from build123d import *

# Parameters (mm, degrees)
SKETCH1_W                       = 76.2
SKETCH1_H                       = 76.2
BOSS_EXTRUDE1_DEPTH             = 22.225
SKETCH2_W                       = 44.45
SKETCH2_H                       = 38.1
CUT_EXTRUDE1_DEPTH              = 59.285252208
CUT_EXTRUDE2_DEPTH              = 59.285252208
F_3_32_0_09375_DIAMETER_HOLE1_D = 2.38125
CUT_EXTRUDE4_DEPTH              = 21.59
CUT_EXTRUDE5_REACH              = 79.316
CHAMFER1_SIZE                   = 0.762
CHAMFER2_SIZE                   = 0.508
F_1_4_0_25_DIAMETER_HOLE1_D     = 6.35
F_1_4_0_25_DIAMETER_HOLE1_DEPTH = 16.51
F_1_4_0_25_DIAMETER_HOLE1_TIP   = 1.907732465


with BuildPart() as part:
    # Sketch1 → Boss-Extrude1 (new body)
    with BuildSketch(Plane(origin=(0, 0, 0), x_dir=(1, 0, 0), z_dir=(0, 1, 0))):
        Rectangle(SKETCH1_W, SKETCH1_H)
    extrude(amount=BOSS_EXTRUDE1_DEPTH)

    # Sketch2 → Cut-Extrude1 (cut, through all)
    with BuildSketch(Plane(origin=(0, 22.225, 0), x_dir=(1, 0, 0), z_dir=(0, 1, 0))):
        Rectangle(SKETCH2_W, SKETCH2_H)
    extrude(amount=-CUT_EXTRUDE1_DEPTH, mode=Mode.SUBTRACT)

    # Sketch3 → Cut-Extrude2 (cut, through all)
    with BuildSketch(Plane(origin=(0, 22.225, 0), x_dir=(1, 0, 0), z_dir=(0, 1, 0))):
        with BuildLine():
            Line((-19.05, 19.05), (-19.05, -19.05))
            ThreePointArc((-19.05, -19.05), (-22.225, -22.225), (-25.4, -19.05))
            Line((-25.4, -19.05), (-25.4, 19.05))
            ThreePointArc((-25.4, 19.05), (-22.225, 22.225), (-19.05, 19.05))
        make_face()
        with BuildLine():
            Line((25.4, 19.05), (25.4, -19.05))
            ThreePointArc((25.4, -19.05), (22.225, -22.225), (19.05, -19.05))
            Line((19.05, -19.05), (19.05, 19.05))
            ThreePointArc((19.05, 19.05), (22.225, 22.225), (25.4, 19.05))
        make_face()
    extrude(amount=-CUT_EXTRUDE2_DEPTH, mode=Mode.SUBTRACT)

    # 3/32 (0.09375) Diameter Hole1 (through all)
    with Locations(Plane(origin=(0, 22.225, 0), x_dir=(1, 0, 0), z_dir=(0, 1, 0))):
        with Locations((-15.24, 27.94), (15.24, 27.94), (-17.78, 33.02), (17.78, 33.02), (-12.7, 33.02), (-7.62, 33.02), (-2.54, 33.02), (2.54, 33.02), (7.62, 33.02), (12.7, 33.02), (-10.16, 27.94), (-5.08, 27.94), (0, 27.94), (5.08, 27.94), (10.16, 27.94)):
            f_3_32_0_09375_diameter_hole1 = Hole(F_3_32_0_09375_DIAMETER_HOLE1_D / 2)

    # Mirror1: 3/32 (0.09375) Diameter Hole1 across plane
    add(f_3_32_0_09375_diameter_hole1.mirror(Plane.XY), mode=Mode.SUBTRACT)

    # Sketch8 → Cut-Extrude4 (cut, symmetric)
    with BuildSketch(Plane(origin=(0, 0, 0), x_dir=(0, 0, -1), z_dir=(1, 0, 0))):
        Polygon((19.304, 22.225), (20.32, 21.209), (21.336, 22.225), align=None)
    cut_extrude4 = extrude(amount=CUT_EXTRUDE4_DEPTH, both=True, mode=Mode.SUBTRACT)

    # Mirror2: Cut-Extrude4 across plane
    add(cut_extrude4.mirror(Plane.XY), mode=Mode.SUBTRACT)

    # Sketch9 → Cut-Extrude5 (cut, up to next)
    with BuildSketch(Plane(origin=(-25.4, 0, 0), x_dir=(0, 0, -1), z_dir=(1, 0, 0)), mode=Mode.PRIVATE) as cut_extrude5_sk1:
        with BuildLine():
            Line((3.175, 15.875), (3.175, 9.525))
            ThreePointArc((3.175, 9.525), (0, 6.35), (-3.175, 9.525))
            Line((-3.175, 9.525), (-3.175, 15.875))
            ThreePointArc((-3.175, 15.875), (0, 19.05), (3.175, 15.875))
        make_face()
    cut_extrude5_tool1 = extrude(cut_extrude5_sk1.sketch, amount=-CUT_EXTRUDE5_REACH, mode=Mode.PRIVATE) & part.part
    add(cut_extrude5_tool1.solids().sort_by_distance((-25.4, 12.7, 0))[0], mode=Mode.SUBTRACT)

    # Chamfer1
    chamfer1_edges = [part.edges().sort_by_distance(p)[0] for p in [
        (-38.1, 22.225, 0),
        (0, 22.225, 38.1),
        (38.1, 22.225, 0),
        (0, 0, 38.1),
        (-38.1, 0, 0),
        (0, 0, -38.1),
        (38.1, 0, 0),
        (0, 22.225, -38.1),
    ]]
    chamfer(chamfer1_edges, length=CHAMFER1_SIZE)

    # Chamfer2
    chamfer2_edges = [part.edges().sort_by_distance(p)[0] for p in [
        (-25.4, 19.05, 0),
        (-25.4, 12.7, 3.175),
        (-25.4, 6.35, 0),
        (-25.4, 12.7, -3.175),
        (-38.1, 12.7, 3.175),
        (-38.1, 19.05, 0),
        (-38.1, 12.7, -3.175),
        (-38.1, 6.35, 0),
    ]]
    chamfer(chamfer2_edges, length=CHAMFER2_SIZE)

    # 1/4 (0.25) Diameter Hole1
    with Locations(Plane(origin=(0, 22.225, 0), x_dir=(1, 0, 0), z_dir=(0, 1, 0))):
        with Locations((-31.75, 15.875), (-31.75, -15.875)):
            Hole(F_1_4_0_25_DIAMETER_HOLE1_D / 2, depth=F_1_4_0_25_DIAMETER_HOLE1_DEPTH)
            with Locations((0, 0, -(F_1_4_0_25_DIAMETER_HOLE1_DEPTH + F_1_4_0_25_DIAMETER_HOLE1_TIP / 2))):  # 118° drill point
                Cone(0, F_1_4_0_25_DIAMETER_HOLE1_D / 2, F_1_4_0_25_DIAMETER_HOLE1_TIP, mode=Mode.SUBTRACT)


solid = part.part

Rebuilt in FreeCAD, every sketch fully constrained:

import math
import FreeCAD as App
import Part
import Sketcher
from FreeCAD import Vector
Q = App.Units.Quantity


def edges_at(feature, points):
    """Names of the edges that pass closest to the given points."""
    edges = feature.Shape.Edges
    near = lambda p: min(range(len(edges)), key=lambda i: edges[i].distToShape(Part.Vertex(*p))[0])
    return sorted({f"Edge{near(p) + 1}" for p in points})

doc = App.newDocument("Part")
body = doc.addObject("PartDesign::Body", "Body")

# Sketch on XZ plane
sketch1 = doc.addObject("Sketcher::SketchObject", "Sketch")
body.addObject(sketch1)
sketch1.AttachmentSupport = (doc.XZ_Plane, [""])
sketch1.MapMode = "FlatFace"
sketch1.addGeometry([
    Part.LineSegment(Vector(-38, -38, 0), Vector(-38, 38, 0)),
    Part.LineSegment(Vector(-38, 38, 0), Vector(38, 38, 0)),
    Part.LineSegment(Vector(38, 38, 0), Vector(38, -38, 0)),
    Part.LineSegment(Vector(38, -38, 0), Vector(-38, -38, 0)),
], False)
sketch1.addConstraint([
    Sketcher.Constraint("Coincident", 0, 2, 1, 1),
    Sketcher.Constraint("Coincident", 1, 2, 2, 1),
    Sketcher.Constraint("Coincident", 2, 2, 3, 1),
    Sketcher.Constraint("Coincident", 3, 2, 0, 1),
    Sketcher.Constraint("Vertical", 0),
    Sketcher.Constraint("Horizontal", 1),
    Sketcher.Constraint("Vertical", 2),
    Sketcher.Constraint("Horizontal", 3),
    Sketcher.Constraint("Symmetric", 0, 2, 2, 2, -1, 1),
    Sketcher.Constraint("Equal", 3, 0),
    Sketcher.Constraint("DistanceX", 1, 1, 1, 2, Q("3 in")),
])
pad1 = doc.addObject("PartDesign::Pad", "Pad")
body.addObject(pad1)
pad1.Profile = sketch1
pad1.Length = Q("0.875 in")
pad1.Reversed = True

# Sketch on XZ plane
sketch2 = doc.addObject("Sketcher::SketchObject", "Sketch001")
body.addObject(sketch2)
sketch2.AttachmentSupport = (doc.XZ_Plane, [""])
sketch2.MapMode = "FlatFace"
sketch2.AttachmentOffset = App.Placement(Vector(0, 0, -0.875 * 25.4), App.Rotation())
sketch2.addGeometry([
    Part.LineSegment(Vector(-22, -19, 0), Vector(-22, 19, 0)),
    Part.LineSegment(Vector(-22, 19, 0), Vector(22, 19, 0)),
    Part.LineSegment(Vector(22, 19, 0), Vector(22, -19, 0)),
    Part.LineSegment(Vector(22, -19, 0), Vector(-22, -19, 0)),
], False)
sketch2.addConstraint([
    Sketcher.Constraint("Coincident", 0, 2, 1, 1),
    Sketcher.Constraint("Coincident", 1, 2, 2, 1),
    Sketcher.Constraint("Coincident", 2, 2, 3, 1),
    Sketcher.Constraint("Coincident", 3, 2, 0, 1),
    Sketcher.Constraint("Vertical", 0),
    Sketcher.Constraint("Horizontal", 1),
    Sketcher.Constraint("Vertical", 2),
    Sketcher.Constraint("Horizontal", 3),
    Sketcher.Constraint("Symmetric", 0, 2, 2, 2, -1, 1),
    Sketcher.Constraint("DistanceY", 0, 1, 0, 2, Q("1.5 in")),
    Sketcher.Constraint("DistanceX", 1, 1, 1, 2, Q("1.75 in")),
])
pocket1 = doc.addObject("PartDesign::Pocket", "Pocket")
body.addObject(pocket1)
pocket1.Profile = sketch2
pocket1.Type = "ThroughAll"
pocket1.Reversed = True

# Sketch on XZ plane
sketch3 = doc.addObject("Sketcher::SketchObject", "Sketch002")
body.addObject(sketch3)
sketch3.AttachmentSupport = (doc.XZ_Plane, [""])
sketch3.MapMode = "FlatFace"
sketch3.AttachmentOffset = App.Placement(Vector(0, 0, -0.875 * 25.4), App.Rotation())
sketch3.addGeometry([
    Part.LineSegment(Vector(-19.1, 19.1, 0), Vector(-19.1, -19.1, 0)),  # 0
    Part.ArcOfCircle(Part.Circle(Vector(-22.2, -19.1, 0), Vector(0, 0, 1), 3.2), math.radians(180), math.radians(360)),  # 1
    Part.LineSegment(Vector(-25.4, -19.1, 0), Vector(-25.4, 19.1, 0)),  # 2
    Part.ArcOfCircle(Part.Circle(Vector(-22.2, 19.1, 0), Vector(0, 0, 1), 3.2), math.radians(0), math.radians(180)),  # 3
    Part.LineSegment(Vector(25.4, 19.1, 0), Vector(25.4, -19.1, 0)),  # 4
    Part.ArcOfCircle(Part.Circle(Vector(22.2, -19.1, 0), Vector(0, 0, 1), 3.2), math.radians(180), math.radians(360)),  # 5
    Part.LineSegment(Vector(19.1, -19.1, 0), Vector(19.1, 19.1, 0)),  # 6
    Part.ArcOfCircle(Part.Circle(Vector(22.2, 19.1, 0), Vector(0, 0, 1), 3.2), math.radians(0), math.radians(180)),  # 7
], False)
sketch3.addConstraint([
    Sketcher.Constraint("Tangent", 0, 2, 1, 2),
    Sketcher.Constraint("Tangent", 1, 1, 2, 1),
    Sketcher.Constraint("Tangent", 2, 2, 3, 2),
    Sketcher.Constraint("Tangent", 3, 1, 0, 1),
    Sketcher.Constraint("Tangent", 4, 2, 5, 2),
    Sketcher.Constraint("Tangent", 5, 1, 6, 1),
    Sketcher.Constraint("Tangent", 6, 2, 7, 2),
    Sketcher.Constraint("Tangent", 7, 1, 4, 1),
    Sketcher.Constraint("Vertical", 0),
    Sketcher.Constraint("Vertical", 2),
    Sketcher.Constraint("Vertical", 4),
    Sketcher.Constraint("Vertical", 6),
    Sketcher.Constraint("Equal", 3, 5),
    Sketcher.Constraint("Symmetric", 3, 3, 5, 3, -1, 1),
    Sketcher.Constraint("Horizontal", 1, 3, 5, 3),
    Sketcher.Constraint("Horizontal", 3, 3, 7, 3),
    Sketcher.Constraint("DistanceY", 0, 2, 0, 1, Q("1.5 in")),
    Sketcher.Constraint("DistanceX", 1, 1, -1, 1, Q("1 in")),
    Sketcher.Constraint("Radius", 1, Q("0.125 in")),
])
pocket2 = doc.addObject("PartDesign::Pocket", "Pocket001")
body.addObject(pocket2)
pocket2.Profile = sketch3
pocket2.Type = "ThroughAll"
pocket2.Reversed = True

# Sketch on XZ plane
sketch4 = doc.addObject("Sketcher::SketchObject", "Sketch003")
body.addObject(sketch4)
sketch4.AttachmentSupport = (doc.XZ_Plane, [""])
sketch4.MapMode = "FlatFace"
sketch4.AttachmentOffset = App.Placement(Vector(0, 0, -0.875 * 25.4), App.Rotation())
sketch4.addGeometry([
    Part.Circle(Vector(-15.2, -27.9, 0), Vector(0, 0, 1), 1.2),  # 0
    Part.Circle(Vector(15.2, -27.9, 0), Vector(0, 0, 1), 1.2),  # 1
    Part.Circle(Vector(-17.8, -33, 0), Vector(0, 0, 1), 1.2),  # 2
    Part.Circle(Vector(17.8, -33, 0), Vector(0, 0, 1), 1.2),  # 3
    Part.Circle(Vector(-12.7, -33, 0), Vector(0, 0, 1), 1.2),  # 4
    Part.Circle(Vector(-7.6, -33, 0), Vector(0, 0, 1), 1.2),  # 5
    Part.Circle(Vector(-2.5, -33, 0), Vector(0, 0, 1), 1.2),  # 6
    Part.Circle(Vector(2.5, -33, 0), Vector(0, 0, 1), 1.2),  # 7
    Part.Circle(Vector(7.6, -33, 0), Vector(0, 0, 1), 1.2),  # 8
    Part.Circle(Vector(12.7, -33, 0), Vector(0, 0, 1), 1.2),  # 9
    Part.Circle(Vector(-10.2, -27.9, 0), Vector(0, 0, 1), 1.2),  # 10
    Part.Circle(Vector(-5.1, -27.9, 0), Vector(0, 0, 1), 1.2),  # 11
    Part.Circle(Vector(0, -27.9, 0), Vector(0, 0, 1), 1.2),  # 12
    Part.Circle(Vector(5.1, -27.9, 0), Vector(0, 0, 1), 1.2),  # 13
    Part.Circle(Vector(10.2, -27.9, 0), Vector(0, 0, 1), 1.2),  # 14
], False)
sketch4.addConstraint([
    Sketcher.Constraint("Equal", 0, 1),
    Sketcher.Constraint("Equal", 1, 2),
    Sketcher.Constraint("Equal", 2, 3),
    Sketcher.Constraint("Equal", 3, 4),
    Sketcher.Constraint("Equal", 4, 5),
    Sketcher.Constraint("Equal", 5, 6),
    Sketcher.Constraint("Equal", 6, 7),
    Sketcher.Constraint("Equal", 7, 8),
    Sketcher.Constraint("Equal", 8, 9),
    Sketcher.Constraint("Equal", 9, 10),
    Sketcher.Constraint("Equal", 10, 11),
    Sketcher.Constraint("Equal", 11, 12),
    Sketcher.Constraint("Equal", 12, 13),
    Sketcher.Constraint("Equal", 13, 14),
    Sketcher.Constraint("Symmetric", 0, 3, 1, 3, -2),
    Sketcher.Constraint("Symmetric", 2, 3, 3, 3, -2),
    Sketcher.Constraint("Symmetric", 6, 3, 7, 3, -2),
    Sketcher.Constraint("Symmetric", 5, 3, 8, 3, -2),
    Sketcher.Constraint("Symmetric", 4, 3, 9, 3, -2),
    Sketcher.Constraint("Symmetric", 11, 3, 13, 3, -2),
    Sketcher.Constraint("Symmetric", 10, 3, 14, 3, -2),
    Sketcher.Constraint("PointOnObject", 12, 3, -2),
    Sketcher.Constraint("Horizontal", 3, 3, 4, 3),
    Sketcher.Constraint("Horizontal", 4, 3, 5, 3),
    Sketcher.Constraint("Horizontal", 5, 3, 6, 3),
    Sketcher.Constraint("Horizontal", 1, 3, 10, 3),
    Sketcher.Constraint("Horizontal", 10, 3, 11, 3),
    Sketcher.Constraint("Horizontal", 11, 3, 12, 3),
    Sketcher.Constraint("Diameter", 0, Q("0.09375 in")),
    Sketcher.Constraint("DistanceX", 5, 3, 3, 3, Q("1 in")),
    Sketcher.Constraint("DistanceX", 0, 3, -1, 1, Q("0.6 in")),
    Sketcher.Constraint("DistanceY", 0, 3, -1, 1, Q("1.1 in")),
    Sketcher.Constraint("DistanceX", 2, 3, -1, 1, Q("0.7 in")),
    Sketcher.Constraint("DistanceY", 2, 3, -1, 1, Q("1.3 in")),
    Sketcher.Constraint("DistanceX", 4, 3, -1, 1, Q("0.5 in")),
    Sketcher.Constraint("DistanceX", 6, 3, -1, 1, Q("0.1 in")),
    Sketcher.Constraint("DistanceX", 10, 3, -1, 1, Q("0.4 in")),
    Sketcher.Constraint("DistanceX", 11, 3, -1, 1, Q("0.2 in")),
])
doc.recompute()
hole = doc.addObject("PartDesign::Hole", "Hole")
body.addObject(hole)
hole.Profile = sketch4
hole.ThreadType = "None"
hole.Diameter = Q("0.09375 in")
hole.DepthType = "ThroughAll"
hole.Reversed = True
doc.recompute()

mirrored = doc.addObject("PartDesign::Mirrored", "Mirrored")
body.addObject(mirrored)
mirrored.Originals = [hole]
mirrored.MirrorPlane = (doc.XY_Plane, [""])
body.Tip = mirrored

# Sketch on YZ plane
sketch5 = doc.addObject("Sketcher::SketchObject", "Sketch004")
body.addObject(sketch5)
sketch5.AttachmentSupport = (doc.YZ_Plane, [""])
sketch5.MapMode = "FlatFace"
sketch5.addGeometry([
    Part.LineSegment(Vector(22.2, -19.3, 0), Vector(21.2, -20.3, 0)),
    Part.LineSegment(Vector(21.2, -20.3, 0), Vector(22.2, -21.3, 0)),
    Part.LineSegment(Vector(22.2, -21.3, 0), Vector(22.2, -19.3, 0)),
], False)
sketch5.addConstraint([
    Sketcher.Constraint("Coincident", 0, 2, 1, 1),
    Sketcher.Constraint("Coincident", 1, 2, 2, 1),
    Sketcher.Constraint("Coincident", 2, 2, 0, 1),
    Sketcher.Constraint("Vertical", 2),
    Sketcher.Constraint("Perpendicular", 0, 1),
    Sketcher.Constraint("Equal", 0, 1),
    Sketcher.Constraint("DistanceY", 2, 1, 2, 2, Q("0.08 in")),
    Sketcher.Constraint("DistanceY", 0, 2, -1, 1, Q("0.8 in")),
    Sketcher.Constraint("DistanceX", -1, 1, 0, 2, Q("0.835 in")),
])
pocket3 = doc.addObject("PartDesign::Pocket", "Pocket002")
body.addObject(pocket3)
pocket3.Profile = sketch5
pocket3.Length = Q("1.7 in")
pocket3.Midplane = True
doc.recompute()

mirrored2 = doc.addObject("PartDesign::Mirrored", "Mirrored001")
body.addObject(mirrored2)
mirrored2.Originals = [pocket3]
mirrored2.MirrorPlane = (doc.XY_Plane, [""])
body.Tip = mirrored2

# Sketch on YZ plane
sketch6 = doc.addObject("Sketcher::SketchObject", "Sketch005")
body.addObject(sketch6)
sketch6.AttachmentSupport = (doc.YZ_Plane, [""])
sketch6.MapMode = "FlatFace"
sketch6.AttachmentOffset = App.Placement(Vector(0, 0, -1 * 25.4), App.Rotation())
sketch6.addGeometry([
    Part.LineSegment(Vector(9.5, -3.2, 0), Vector(15.9, -3.2, 0)),
    Part.ArcOfCircle(Part.Circle(Vector(15.9, 0, 0), Vector(0, 0, 1), 3.2), math.radians(-90), math.radians(90)),
    Part.LineSegment(Vector(15.9, 3.2, 0), Vector(9.5, 3.2, 0)),
    Part.ArcOfCircle(Part.Circle(Vector(9.5, 0, 0), Vector(0, 0, 1), 3.2), math.radians(90), math.radians(270)),
], False)
sketch6.addConstraint([
    Sketcher.Constraint("Tangent", 0, 2, 1, 1),
    Sketcher.Constraint("Tangent", 1, 2, 2, 1),
    Sketcher.Constraint("Tangent", 2, 2, 3, 1),
    Sketcher.Constraint("Tangent", 3, 2, 0, 1),
    Sketcher.Constraint("Horizontal", 0),
    Sketcher.Constraint("Horizontal", 2),
    Sketcher.Constraint("PointOnObject", 1, 3, -1),
    Sketcher.Constraint("Radius", 1, Q("0.125 in")),
    Sketcher.Constraint("DistanceX", 0, 1, 0, 2, Q("0.25 in")),
    Sketcher.Constraint("DistanceX", -1, 1, 1, 3, Q("0.625 in")),
])
pocket4 = doc.addObject("PartDesign::Pocket", "Pocket003")
body.addObject(pocket4)
pocket4.Profile = sketch6
pocket4.Type = "UpToFirst"
doc.recompute()

chamfer = doc.addObject("PartDesign::Chamfer", "Chamfer")
body.addObject(chamfer)
chamfer.Base = (pocket4, edges_at(pocket4, [
    (-38.1, 22.225, 0),
    (0, 22.225, 38.1),
    (38.1, 22.225, 0),
    (0, 0, 38.1),
    (-38.1, 0, 0),
    (0, 0, -38.1),
    (38.1, 0, 0),
    (0, 22.225, -38.1),
]))
chamfer.Size = Q("0.03 in")
doc.recompute()

chamfer2 = doc.addObject("PartDesign::Chamfer", "Chamfer001")
body.addObject(chamfer2)
chamfer2.Base = (chamfer, edges_at(chamfer, [
    (-25.4, 19.05, 0),
    (-25.4, 12.7, 3.175),
    (-25.4, 6.35, 0),
    (-25.4, 12.7, -3.175),
    (-38.1, 12.7, 3.175),
    (-38.1, 19.05, 0),
    (-38.1, 12.7, -3.175),
    (-38.1, 6.35, 0),
]))
chamfer2.Size = Q("0.02 in")

# Sketch on XZ plane
sketch7 = doc.addObject("Sketcher::SketchObject", "Sketch006")
body.addObject(sketch7)
sketch7.AttachmentSupport = (doc.XZ_Plane, [""])
sketch7.MapMode = "FlatFace"
sketch7.AttachmentOffset = App.Placement(Vector(0, 0, -0.875 * 25.4), App.Rotation())
sketch7.addGeometry([
    Part.Circle(Vector(-31.8, -15.9, 0), Vector(0, 0, 1), 3.2),
    Part.Circle(Vector(-31.8, 15.9, 0), Vector(0, 0, 1), 3.2),
], False)
sketch7.addConstraint([
    Sketcher.Constraint("Equal", 0, 1),
    Sketcher.Constraint("Symmetric", 0, 3, 1, 3, -1),
    Sketcher.Constraint("Diameter", 0, Q("0.25 in")),
    Sketcher.Constraint("DistanceX", 0, 3, -1, 1, Q("1.25 in")),
    Sketcher.Constraint("DistanceY", 0, 3, 1, 3, Q("1.25 in")),
])
doc.recompute()
hole2 = doc.addObject("PartDesign::Hole", "Hole001")
body.addObject(hole2)
hole2.Profile = sketch7
hole2.ThreadType = "None"
hole2.Diameter = Q("0.25 in")
hole2.DepthType = "Dimension"
hole2.Depth = Q("0.65 in")
hole2.DrillPoint = "Angled"
hole2.DrillPointAngle = 118
hole2.Reversed = True

doc.recompute()
